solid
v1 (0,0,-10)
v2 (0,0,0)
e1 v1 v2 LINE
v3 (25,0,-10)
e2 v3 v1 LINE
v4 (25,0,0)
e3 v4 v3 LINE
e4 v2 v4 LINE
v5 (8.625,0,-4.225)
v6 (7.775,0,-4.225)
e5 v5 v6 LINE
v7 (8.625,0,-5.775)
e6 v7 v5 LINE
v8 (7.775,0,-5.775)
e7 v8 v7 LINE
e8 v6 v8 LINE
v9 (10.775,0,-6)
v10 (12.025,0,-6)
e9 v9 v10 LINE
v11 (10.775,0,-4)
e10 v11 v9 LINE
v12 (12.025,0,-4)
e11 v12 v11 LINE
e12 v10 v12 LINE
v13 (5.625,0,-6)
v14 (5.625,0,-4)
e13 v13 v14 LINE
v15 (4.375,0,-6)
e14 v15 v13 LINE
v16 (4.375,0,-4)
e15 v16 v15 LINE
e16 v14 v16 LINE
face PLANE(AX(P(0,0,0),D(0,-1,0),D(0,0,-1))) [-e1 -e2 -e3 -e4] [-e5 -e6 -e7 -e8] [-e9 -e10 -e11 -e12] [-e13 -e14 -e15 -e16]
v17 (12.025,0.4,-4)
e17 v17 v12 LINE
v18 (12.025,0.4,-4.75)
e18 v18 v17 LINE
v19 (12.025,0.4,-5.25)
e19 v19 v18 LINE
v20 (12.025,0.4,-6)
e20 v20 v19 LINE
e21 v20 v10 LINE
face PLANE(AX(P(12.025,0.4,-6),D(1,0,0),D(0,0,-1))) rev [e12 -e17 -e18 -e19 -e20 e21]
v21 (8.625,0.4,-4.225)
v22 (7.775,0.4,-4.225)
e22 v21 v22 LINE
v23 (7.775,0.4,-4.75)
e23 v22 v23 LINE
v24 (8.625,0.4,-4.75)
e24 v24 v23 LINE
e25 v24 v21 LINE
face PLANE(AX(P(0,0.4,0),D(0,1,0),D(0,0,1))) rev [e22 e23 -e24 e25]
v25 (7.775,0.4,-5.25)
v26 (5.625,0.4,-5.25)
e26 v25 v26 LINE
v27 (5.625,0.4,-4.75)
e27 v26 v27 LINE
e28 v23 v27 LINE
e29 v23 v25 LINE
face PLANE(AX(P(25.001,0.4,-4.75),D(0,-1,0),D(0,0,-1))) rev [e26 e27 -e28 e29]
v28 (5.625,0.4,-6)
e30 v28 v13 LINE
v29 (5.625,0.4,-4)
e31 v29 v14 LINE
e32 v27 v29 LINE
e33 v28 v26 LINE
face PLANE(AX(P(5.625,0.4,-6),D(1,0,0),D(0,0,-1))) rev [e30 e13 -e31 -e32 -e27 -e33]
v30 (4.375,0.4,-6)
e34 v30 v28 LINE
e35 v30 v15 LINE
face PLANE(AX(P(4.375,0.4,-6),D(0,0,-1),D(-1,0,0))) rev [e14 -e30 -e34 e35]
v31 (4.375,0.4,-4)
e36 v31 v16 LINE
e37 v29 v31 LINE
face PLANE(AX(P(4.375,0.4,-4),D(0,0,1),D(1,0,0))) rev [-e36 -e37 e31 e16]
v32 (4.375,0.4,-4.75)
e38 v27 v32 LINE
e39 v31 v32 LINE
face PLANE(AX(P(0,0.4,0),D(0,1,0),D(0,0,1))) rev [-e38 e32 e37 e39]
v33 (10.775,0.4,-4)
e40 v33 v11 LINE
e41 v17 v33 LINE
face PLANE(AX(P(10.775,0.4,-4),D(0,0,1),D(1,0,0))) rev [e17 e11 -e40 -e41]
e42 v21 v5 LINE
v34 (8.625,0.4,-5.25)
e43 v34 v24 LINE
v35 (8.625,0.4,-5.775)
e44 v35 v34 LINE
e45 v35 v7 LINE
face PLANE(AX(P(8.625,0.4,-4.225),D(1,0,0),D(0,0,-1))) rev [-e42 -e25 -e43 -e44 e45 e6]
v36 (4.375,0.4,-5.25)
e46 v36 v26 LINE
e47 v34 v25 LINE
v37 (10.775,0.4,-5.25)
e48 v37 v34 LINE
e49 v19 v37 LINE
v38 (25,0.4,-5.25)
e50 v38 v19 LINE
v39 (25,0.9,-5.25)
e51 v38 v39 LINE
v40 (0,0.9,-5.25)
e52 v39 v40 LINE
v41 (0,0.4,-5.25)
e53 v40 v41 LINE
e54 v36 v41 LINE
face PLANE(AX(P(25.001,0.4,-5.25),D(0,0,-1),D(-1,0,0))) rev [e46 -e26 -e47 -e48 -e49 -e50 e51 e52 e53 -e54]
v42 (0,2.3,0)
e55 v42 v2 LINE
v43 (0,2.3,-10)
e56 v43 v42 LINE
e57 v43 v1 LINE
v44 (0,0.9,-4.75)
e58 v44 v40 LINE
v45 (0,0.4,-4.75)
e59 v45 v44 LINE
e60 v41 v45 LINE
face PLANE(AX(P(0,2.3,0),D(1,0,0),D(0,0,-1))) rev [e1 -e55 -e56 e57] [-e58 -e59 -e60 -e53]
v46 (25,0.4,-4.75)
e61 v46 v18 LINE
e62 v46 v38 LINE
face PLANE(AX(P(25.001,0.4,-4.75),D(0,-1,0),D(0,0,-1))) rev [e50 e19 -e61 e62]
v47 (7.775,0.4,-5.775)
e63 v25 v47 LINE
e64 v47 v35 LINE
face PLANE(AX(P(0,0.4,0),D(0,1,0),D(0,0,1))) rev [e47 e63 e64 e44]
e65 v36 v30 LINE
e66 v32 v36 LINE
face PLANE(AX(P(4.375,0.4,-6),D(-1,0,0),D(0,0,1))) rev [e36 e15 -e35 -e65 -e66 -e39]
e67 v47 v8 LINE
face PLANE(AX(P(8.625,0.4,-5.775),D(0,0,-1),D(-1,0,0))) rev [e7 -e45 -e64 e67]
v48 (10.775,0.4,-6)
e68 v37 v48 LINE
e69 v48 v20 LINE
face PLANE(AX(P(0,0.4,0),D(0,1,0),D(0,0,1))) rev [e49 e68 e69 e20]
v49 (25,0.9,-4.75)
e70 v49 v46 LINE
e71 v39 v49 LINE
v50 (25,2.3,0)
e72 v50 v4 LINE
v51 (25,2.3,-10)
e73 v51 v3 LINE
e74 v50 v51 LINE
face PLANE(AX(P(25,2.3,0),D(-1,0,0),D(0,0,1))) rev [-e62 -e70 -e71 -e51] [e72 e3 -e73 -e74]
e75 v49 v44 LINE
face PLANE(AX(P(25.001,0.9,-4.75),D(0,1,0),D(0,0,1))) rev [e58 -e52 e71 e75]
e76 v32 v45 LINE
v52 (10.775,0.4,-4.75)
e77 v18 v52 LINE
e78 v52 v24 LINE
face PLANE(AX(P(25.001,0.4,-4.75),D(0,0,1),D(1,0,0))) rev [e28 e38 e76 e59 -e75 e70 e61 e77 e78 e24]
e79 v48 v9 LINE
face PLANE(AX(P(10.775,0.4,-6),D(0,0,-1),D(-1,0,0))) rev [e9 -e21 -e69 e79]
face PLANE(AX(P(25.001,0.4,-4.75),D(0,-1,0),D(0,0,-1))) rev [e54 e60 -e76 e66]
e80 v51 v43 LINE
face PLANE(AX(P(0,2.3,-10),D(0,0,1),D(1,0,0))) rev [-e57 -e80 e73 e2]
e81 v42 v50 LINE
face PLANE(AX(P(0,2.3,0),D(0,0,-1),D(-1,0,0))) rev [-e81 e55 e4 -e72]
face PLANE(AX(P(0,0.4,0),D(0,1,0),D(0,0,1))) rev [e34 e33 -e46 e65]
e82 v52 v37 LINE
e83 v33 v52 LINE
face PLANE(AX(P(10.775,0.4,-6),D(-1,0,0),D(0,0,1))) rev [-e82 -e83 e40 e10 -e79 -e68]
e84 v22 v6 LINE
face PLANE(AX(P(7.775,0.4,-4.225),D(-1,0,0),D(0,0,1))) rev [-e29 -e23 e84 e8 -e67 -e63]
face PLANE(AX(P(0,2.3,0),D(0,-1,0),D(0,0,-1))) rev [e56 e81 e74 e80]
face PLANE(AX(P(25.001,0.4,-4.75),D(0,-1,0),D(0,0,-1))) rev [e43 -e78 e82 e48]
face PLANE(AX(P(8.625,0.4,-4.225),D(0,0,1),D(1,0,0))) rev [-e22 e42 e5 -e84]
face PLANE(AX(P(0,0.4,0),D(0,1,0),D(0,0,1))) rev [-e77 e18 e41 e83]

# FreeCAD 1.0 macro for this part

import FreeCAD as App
import Part
import Sketcher
from FreeCAD import Vector
Q = App.Units.Quantity


def add_polygon(sketch, points):
    """Adds a closed chain of lines whose ends are joined by coincident constraints."""
    first, n = sketch.GeometryCount, len(points)
    for a, b in zip(points, points[1:] + points[:1]):
        sketch.addGeometry(Part.LineSegment(App.Vector(*a, 0), App.Vector(*b, 0)), False)
    for i in range(n):
        sketch.addConstraint(Sketcher.Constraint("Coincident", first + i, 2, first + (i + 1) % n, 1))

doc = App.newDocument("Part")
body = doc.addObject("PartDesign::Body", "Body")

# Sketch on XZ plane
sketch1 = doc.addObject("Sketcher::SketchObject", "Sketch")
body.addObject(sketch1)
sketch1.AttachmentSupport = (doc.XZ_Plane, [""])
sketch1.MapMode = "FlatFace"
add_polygon(sketch1, [(0, -10), (0, 0), (25, 0), (25, -10)])  # lines 0-3
sketch1.addConstraint([
    Sketcher.Constraint("Vertical", 0),
    Sketcher.Constraint("Horizontal", 1),
    Sketcher.Constraint("Vertical", 2),
    Sketcher.Constraint("Horizontal", 3),
    Sketcher.Constraint("Coincident", 0, 2, -1, 1),
    Sketcher.Constraint("DistanceX", 1, 1, 1, 2, Q("25 mm")),
    Sketcher.Constraint("DistanceY", 0, 1, 0, 2, Q("10 mm")),
])
pad1 = doc.addObject("PartDesign::Pad", "Pad")
body.addObject(pad1)
pad1.Profile = sketch1
pad1.Length = 2.3
pad1.Reversed = True

# Sketch on XZ plane
sketch2 = doc.addObject("Sketcher::SketchObject", "Sketch001")
body.addObject(sketch2)
sketch2.AttachmentSupport = (doc.XZ_Plane, [""])
sketch2.MapMode = "FlatFace"
add_polygon(sketch2, [(7.775, -4.225), (7.775, -5.775), (8.625, -5.775), (8.625, -4.225)])  # lines 0-3
sketch2.addConstraint([
    Sketcher.Constraint("Vertical", 0),
    Sketcher.Constraint("Horizontal", 1),
    Sketcher.Constraint("Vertical", 2),
    Sketcher.Constraint("Horizontal", 3),
    Sketcher.Constraint("DistanceX", 1, 1, 1, 2, Q("0.85 mm")),
    Sketcher.Constraint("DistanceY", 0, 2, 0, 1, Q("1.55 mm")),
    Sketcher.Constraint("DistanceX", -1, 1, 0, 2, Q("7.775 mm")),
    Sketcher.Constraint("DistanceY", 0, 2, -1, 1, Q("5.775 mm")),
])
pocket1 = doc.addObject("PartDesign::Pocket", "Pocket")
body.addObject(pocket1)
pocket1.Profile = sketch2
pocket1.Length = 0.4

# Sketch on YZ plane
sketch3 = doc.addObject("Sketcher::SketchObject", "Sketch002")
body.addObject(sketch3)
sketch3.AttachmentSupport = (doc.YZ_Plane, [""])
sketch3.MapMode = "FlatFace"
add_polygon(sketch3, [(0.9, -5.25), (0.4, -5.25), (0.4, -4.75), (0.9, -4.75)])  # lines 0-3
sketch3.addConstraint([
    Sketcher.Constraint("Horizontal", 0),
    Sketcher.Constraint("Vertical", 1),
    Sketcher.Constraint("Horizontal", 2),
    Sketcher.Constraint("Vertical", 3),
    Sketcher.Constraint("Equal", 2, 1),
    Sketcher.Constraint("DistanceX", 0, 2, 0, 1, Q("0.5 mm")),
    Sketcher.Constraint("DistanceX", -1, 1, 0, 2, Q("0.4 mm")),
    Sketcher.Constraint("DistanceY", 0, 2, -1, 1, Q("5.25 mm")),
])
pocket2 = doc.addObject("PartDesign::Pocket", "Pocket001")
body.addObject(pocket2)
pocket2.Profile = sketch3
pocket2.Type = "UpToFirst"
pocket2.Reversed = True

# Sketch on XZ plane
sketch4 = doc.addObject("Sketcher::SketchObject", "Sketch003")
body.addObject(sketch4)
sketch4.AttachmentSupport = (doc.XZ_Plane, [""])
sketch4.MapMode = "FlatFace"
add_polygon(sketch4, [(4.375, -4), (4.375, -6), (5.625, -6), (5.625, -4)])  # lines 0-3
add_polygon(sketch4, [(10.775, -4), (10.775, -6), (12.025, -6), (12.025, -4)])  # lines 4-7
sketch4.addConstraint([
    Sketcher.Constraint("Vertical", 0),
    Sketcher.Constraint("Horizontal", 1),
    Sketcher.Constraint("Vertical", 2),
    Sketcher.Constraint("Horizontal", 3),
    Sketcher.Constraint("Vertical", 4),
    Sketcher.Constraint("Horizontal", 5),
    Sketcher.Constraint("Vertical", 6),
    Sketcher.Constraint("Horizontal", 7),
    Sketcher.Constraint("Horizontal", 1, 2, 4, 2),
    Sketcher.Constraint("Horizontal", 3, 2, 6, 2),
    Sketcher.Constraint("Equal", 3, 5),
    Sketcher.Constraint("DistanceY", 0, 2, 0, 1, Q("2 mm")),
    Sketcher.Constraint("DistanceY", 0, 2, -1, 1, Q("6 mm")),
    Sketcher.Constraint("DistanceX", 1, 1, 1, 2, Q("1.25 mm")),
    Sketcher.Constraint("DistanceX", 0, 2, 4, 2, Q("6.4 mm")),
    Sketcher.Constraint("DistanceX", -1, 1, 0, 2, Q("4.375 mm")),
])
pocket3 = doc.addObject("PartDesign::Pocket", "Pocket002")
body.addObject(pocket3)
pocket3.Profile = sketch4
pocket3.Length = 0.4

doc.recompute()
